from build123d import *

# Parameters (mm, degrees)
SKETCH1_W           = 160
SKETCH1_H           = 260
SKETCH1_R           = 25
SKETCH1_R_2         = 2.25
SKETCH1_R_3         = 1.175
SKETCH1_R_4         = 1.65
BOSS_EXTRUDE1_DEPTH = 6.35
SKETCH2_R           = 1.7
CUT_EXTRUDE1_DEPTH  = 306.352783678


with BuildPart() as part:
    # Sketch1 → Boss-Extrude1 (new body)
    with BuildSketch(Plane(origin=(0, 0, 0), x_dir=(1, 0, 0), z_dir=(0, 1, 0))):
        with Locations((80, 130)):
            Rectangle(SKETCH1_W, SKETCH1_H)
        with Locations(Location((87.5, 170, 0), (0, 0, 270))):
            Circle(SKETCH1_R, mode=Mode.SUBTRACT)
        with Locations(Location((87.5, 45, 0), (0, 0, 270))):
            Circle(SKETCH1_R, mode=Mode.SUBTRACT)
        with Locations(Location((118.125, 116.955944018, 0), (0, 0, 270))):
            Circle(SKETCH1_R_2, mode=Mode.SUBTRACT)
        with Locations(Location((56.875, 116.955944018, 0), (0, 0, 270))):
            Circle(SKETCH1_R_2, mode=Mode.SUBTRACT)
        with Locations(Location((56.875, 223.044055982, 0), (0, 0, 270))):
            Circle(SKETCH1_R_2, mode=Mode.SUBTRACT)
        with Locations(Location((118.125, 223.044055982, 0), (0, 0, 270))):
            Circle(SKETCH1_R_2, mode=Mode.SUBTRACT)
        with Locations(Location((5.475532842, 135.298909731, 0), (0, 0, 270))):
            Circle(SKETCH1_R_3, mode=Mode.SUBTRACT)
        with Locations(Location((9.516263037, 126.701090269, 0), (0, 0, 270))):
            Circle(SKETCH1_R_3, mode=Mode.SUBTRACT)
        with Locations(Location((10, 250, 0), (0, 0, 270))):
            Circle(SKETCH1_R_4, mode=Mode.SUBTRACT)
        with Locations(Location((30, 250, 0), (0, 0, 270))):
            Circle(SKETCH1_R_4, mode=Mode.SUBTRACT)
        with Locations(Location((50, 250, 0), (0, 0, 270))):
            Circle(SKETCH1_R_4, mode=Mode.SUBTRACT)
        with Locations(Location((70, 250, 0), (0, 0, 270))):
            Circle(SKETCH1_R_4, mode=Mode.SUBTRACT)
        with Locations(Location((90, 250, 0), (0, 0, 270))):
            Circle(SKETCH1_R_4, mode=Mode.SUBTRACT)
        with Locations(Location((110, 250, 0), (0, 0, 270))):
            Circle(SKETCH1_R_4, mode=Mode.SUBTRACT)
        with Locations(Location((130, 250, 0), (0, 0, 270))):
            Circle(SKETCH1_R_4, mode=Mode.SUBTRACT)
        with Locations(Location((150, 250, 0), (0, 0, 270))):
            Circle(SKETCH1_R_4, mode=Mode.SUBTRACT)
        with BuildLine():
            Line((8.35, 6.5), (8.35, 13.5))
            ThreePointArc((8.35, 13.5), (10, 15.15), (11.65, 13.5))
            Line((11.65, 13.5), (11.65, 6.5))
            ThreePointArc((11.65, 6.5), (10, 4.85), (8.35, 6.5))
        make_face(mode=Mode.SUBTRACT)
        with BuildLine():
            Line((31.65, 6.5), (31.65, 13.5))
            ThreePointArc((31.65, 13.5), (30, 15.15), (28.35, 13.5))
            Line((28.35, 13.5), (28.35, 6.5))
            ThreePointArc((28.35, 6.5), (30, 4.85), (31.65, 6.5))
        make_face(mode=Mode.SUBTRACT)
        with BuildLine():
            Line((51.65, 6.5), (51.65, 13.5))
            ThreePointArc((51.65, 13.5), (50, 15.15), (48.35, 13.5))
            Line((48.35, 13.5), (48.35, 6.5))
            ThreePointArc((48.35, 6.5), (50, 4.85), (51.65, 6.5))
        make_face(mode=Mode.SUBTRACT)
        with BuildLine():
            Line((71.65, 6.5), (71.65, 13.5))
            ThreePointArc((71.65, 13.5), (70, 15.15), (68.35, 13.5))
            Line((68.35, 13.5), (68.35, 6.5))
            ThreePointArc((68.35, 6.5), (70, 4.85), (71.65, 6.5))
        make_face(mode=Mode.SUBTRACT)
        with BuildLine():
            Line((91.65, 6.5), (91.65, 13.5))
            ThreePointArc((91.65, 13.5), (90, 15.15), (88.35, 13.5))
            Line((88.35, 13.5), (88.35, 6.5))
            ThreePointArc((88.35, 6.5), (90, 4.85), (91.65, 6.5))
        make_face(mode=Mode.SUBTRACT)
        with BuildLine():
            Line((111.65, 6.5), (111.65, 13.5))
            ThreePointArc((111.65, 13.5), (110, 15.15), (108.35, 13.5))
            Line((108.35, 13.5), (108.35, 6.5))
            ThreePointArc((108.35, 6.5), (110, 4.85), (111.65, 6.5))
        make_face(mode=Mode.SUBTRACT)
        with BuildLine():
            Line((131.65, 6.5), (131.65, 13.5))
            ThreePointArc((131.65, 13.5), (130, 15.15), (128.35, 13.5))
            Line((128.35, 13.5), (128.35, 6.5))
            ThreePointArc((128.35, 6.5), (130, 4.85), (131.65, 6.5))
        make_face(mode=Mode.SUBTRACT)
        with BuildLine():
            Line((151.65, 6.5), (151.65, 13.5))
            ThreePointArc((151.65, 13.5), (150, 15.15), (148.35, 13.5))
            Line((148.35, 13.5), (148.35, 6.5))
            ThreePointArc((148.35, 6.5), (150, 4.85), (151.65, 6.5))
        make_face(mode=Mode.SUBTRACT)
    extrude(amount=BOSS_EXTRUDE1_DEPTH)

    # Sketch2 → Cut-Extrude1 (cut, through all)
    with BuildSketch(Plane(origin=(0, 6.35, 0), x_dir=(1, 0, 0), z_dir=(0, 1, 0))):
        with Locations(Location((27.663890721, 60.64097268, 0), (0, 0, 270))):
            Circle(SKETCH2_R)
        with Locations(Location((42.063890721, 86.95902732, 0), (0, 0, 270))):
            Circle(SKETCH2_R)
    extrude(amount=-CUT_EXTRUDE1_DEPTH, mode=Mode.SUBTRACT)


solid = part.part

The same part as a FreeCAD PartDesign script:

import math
import FreeCAD as App
import Part
import Sketcher
from FreeCAD import Vector
Q = App.Units.Quantity

doc = App.newDocument("Part")
params = doc.addObject("Spreadsheet::Sheet", "Params")
for row, (alias, value) in enumerate([
    ("sketch1_diameter", "50 mm"),
    ("sketch1_diameter2", "4.5 mm"),
    ("sketch1_diameter3", "3.3 mm"),
    ("sketch1_diameter4", "2.35 mm"),
    ("sketch1_width", "160 mm"),
    ("pad1_length", "6.35 mm"),
    ("sketch2_diameter", "3.4 mm"),
], start=1):
    params.set(f"A{row}", alias)
    params.set(f"B{row}", "=" + value)
    params.setAlias(f"B{row}", alias)

body = doc.addObject("PartDesign::Body", "Body")

# Sketch on XZ plane
sketch1 = body.newObject("Sketcher::SketchObject", "Sketch")
sketch1.AttachmentSupport = (doc.getObject("XZ_Plane"), [""])
sketch1.MapMode = "FlatFace"
sketch1.addGeometry([
    Part.LineSegment(Vector(0, -260, 0), Vector(0, 0, 0)),  # 0
    Part.LineSegment(Vector(0, 0, 0), Vector(160, 0, 0)),  # 1
    Part.LineSegment(Vector(160, 0, 0), Vector(160, -260, 0)),  # 2
    Part.LineSegment(Vector(160, -260, 0), Vector(0, -260, 0)),  # 3
    Part.ArcOfCircle(Part.Circle(Vector(10, -6.5, 0), Vector(0, 0, 1), 1.6), math.radians(0), math.radians(180)),  # 4
    Part.LineSegment(Vector(8.3, -6.5, 0), Vector(8.3, -13.5, 0)),  # 5
    Part.ArcOfCircle(Part.Circle(Vector(10, -13.5, 0), Vector(0, 0, 1), 1.6), math.radians(180), math.radians(360)),  # 6
    Part.LineSegment(Vector(11.7, -13.5, 0), Vector(11.7, -6.5, 0)),  # 7
    Part.LineSegment(Vector(31.6, -13.5, 0), Vector(31.6, -6.5, 0)),  # 8
    Part.ArcOfCircle(Part.Circle(Vector(30, -6.5, 0), Vector(0, 0, 1), 1.6), math.radians(0), math.radians(180)),  # 9
    Part.LineSegment(Vector(28.4, -6.5, 0), Vector(28.4, -13.5, 0)),  # 10
    Part.ArcOfCircle(Part.Circle(Vector(30, -13.5, 0), Vector(0, 0, 1), 1.6), math.radians(180), math.radians(360)),  # 11
    Part.LineSegment(Vector(51.6, -13.5, 0), Vector(51.6, -6.5, 0)),  # 12
    Part.ArcOfCircle(Part.Circle(Vector(50, -6.5, 0), Vector(0, 0, 1), 1.6), math.radians(0), math.radians(180)),  # 13
    Part.LineSegment(Vector(48.4, -6.5, 0), Vector(48.4, -13.5, 0)),  # 14
    Part.ArcOfCircle(Part.Circle(Vector(50, -13.5, 0), Vector(0, 0, 1), 1.6), math.radians(180), math.radians(360)),  # 15
    Part.LineSegment(Vector(71.7, -13.5, 0), Vector(71.7, -6.5, 0)),  # 16
    Part.ArcOfCircle(Part.Circle(Vector(70, -6.5, 0), Vector(0, 0, 1), 1.6), math.radians(0), math.radians(180)),  # 17
    Part.LineSegment(Vector(68.3, -6.5, 0), Vector(68.3, -13.5, 0)),  # 18
    Part.ArcOfCircle(Part.Circle(Vector(70, -13.5, 0), Vector(0, 0, 1), 1.6), math.radians(180), math.radians(360)),  # 19
    Part.Circle(Vector(9.5, -126.7, 0), Vector(0, 0, 1), 1.2),  # 20
    Part.Circle(Vector(56.9, -117, 0), Vector(0, 0, 1), 2.2),  # 21
    Part.LineSegment(Vector(91.7, -13.5, 0), Vector(91.7, -6.5, 0)),  # 22
    Part.ArcOfCircle(Part.Circle(Vector(90, -6.5, 0), Vector(0, 0, 1), 1.6), math.radians(0), math.radians(180)),  # 23
    Part.LineSegment(Vector(88.3, -6.5, 0), Vector(88.3, -13.5, 0)),  # 24
    Part.ArcOfCircle(Part.Circle(Vector(90, -13.5, 0), Vector(0, 0, 1), 1.6), math.radians(180), math.radians(360)),  # 25
    Part.LineSegment(Vector(111.7, -13.5, 0), Vector(111.7, -6.5, 0)),  # 26
    Part.ArcOfCircle(Part.Circle(Vector(110, -6.5, 0), Vector(0, 0, 1), 1.6), math.radians(0), math.radians(180)),  # 27
    Part.LineSegment(Vector(108.3, -6.5, 0), Vector(108.3, -13.5, 0)),  # 28
    Part.ArcOfCircle(Part.Circle(Vector(110, -13.5, 0), Vector(0, 0, 1), 1.6), math.radians(180), math.radians(360)),  # 29
    Part.Circle(Vector(87.5, -45, 0), Vector(0, 0, 1), 25),  # 30
    Part.LineSegment(Vector(131.7, -13.5, 0), Vector(131.7, -6.5, 0)),  # 31
    Part.ArcOfCircle(Part.Circle(Vector(130, -6.5, 0), Vector(0, 0, 1), 1.6), math.radians(0), math.radians(180)),  # 32
    Part.LineSegment(Vector(128.3, -6.5, 0), Vector(128.3, -13.5, 0)),  # 33
    Part.ArcOfCircle(Part.Circle(Vector(130, -13.5, 0), Vector(0, 0, 1), 1.6), math.radians(180), math.radians(360)),  # 34
    Part.LineSegment(Vector(151.7, -13.5, 0), Vector(151.7, -6.5, 0)),  # 35
    Part.ArcOfCircle(Part.Circle(Vector(150, -6.5, 0), Vector(0, 0, 1), 1.6), math.radians(0), math.radians(180)),  # 36
    Part.LineSegment(Vector(148.3, -6.5, 0), Vector(148.3, -13.5, 0)),  # 37
    Part.ArcOfCircle(Part.Circle(Vector(150, -13.5, 0), Vector(0, 0, 1), 1.6), math.radians(180), math.radians(360)),  # 38
    Part.Circle(Vector(118.1, -117, 0), Vector(0, 0, 1), 2.2),  # 39
    Part.Circle(Vector(5.5, -135.3, 0), Vector(0, 0, 1), 1.2),  # 40
    Part.Circle(Vector(10, -250, 0), Vector(0, 0, 1), 1.6),  # 41
    Part.Circle(Vector(30, -250, 0), Vector(0, 0, 1), 1.6),  # 42
    Part.Circle(Vector(56.9, -223, 0), Vector(0, 0, 1), 2.2),  # 43
    Part.Circle(Vector(50, -250, 0), Vector(0, 0, 1), 1.6),  # 44
    Part.Circle(Vector(70, -250, 0), Vector(0, 0, 1), 1.6),  # 45
    Part.Circle(Vector(87.5, -170, 0), Vector(0, 0, 1), 25),  # 46
    Part.Circle(Vector(90, -250, 0), Vector(0, 0, 1), 1.6),  # 47
    Part.Circle(Vector(110, -250, 0), Vector(0, 0, 1), 1.6),  # 48
    Part.Circle(Vector(118.1, -223, 0), Vector(0, 0, 1), 2.2),  # 49
    Part.Circle(Vector(130, -250, 0), Vector(0, 0, 1), 1.6),  # 50
    Part.Circle(Vector(150, -250, 0), Vector(0, 0, 1), 1.6),  # 51
], False)
sketch1.addConstraint([
    Sketcher.Constraint("Coincident", 0, 2, 1, 1),
    Sketcher.Constraint("Coincident", 1, 2, 2, 1),
    Sketcher.Constraint("Coincident", 2, 2, 3, 1),
    Sketcher.Constraint("Coincident", 3, 2, 0, 1),
    Sketcher.Constraint("Tangent", 4, 2, 5, 1),
    Sketcher.Constraint("Tangent", 5, 2, 6, 1),
    Sketcher.Constraint("Tangent", 6, 2, 7, 1),
    Sketcher.Constraint("Tangent", 7, 2, 4, 1),
    Sketcher.Constraint("Tangent", 8, 2, 9, 1),
    Sketcher.Constraint("Tangent", 9, 2, 10, 1),
    Sketcher.Constraint("Tangent", 10, 2, 11, 1),
    Sketcher.Constraint("Tangent", 11, 2, 8, 1),
    Sketcher.Constraint("Tangent", 12, 2, 13, 1),
    Sketcher.Constraint("Tangent", 13, 2, 14, 1),
    Sketcher.Constraint("Tangent", 14, 2, 15, 1),
    Sketcher.Constraint("Tangent", 15, 2, 12, 1),
    Sketcher.Constraint("Tangent", 16, 2, 17, 1),
    Sketcher.Constraint("Tangent", 17, 2, 18, 1),
    Sketcher.Constraint("Tangent", 18, 2, 19, 1),
    Sketcher.Constraint("Tangent", 19, 2, 16, 1),
    Sketcher.Constraint("Tangent", 22, 2, 23, 1),
    Sketcher.Constraint("Tangent", 23, 2, 24, 1),
    Sketcher.Constraint("Tangent", 24, 2, 25, 1),
    Sketcher.Constraint("Tangent", 25, 2, 22, 1),
    Sketcher.Constraint("Tangent", 26, 2, 27, 1),
    Sketcher.Constraint("Tangent", 27, 2, 28, 1),
    Sketcher.Constraint("Tangent", 28, 2, 29, 1),
    Sketcher.Constraint("Tangent", 29, 2, 26, 1),
    Sketcher.Constraint("Tangent", 31, 2, 32, 1),
    Sketcher.Constraint("Tangent", 32, 2, 33, 1),
    Sketcher.Constraint("Tangent", 33, 2, 34, 1),
    Sketcher.Constraint("Tangent", 34, 2, 31, 1),
    Sketcher.Constraint("Tangent", 35, 2, 36, 1),
    Sketcher.Constraint("Tangent", 36, 2, 37, 1),
    Sketcher.Constraint("Tangent", 37, 2, 38, 1),
    Sketcher.Constraint("Tangent", 38, 2, 35, 1),
    Sketcher.Constraint("Vertical", 0),
    Sketcher.Constraint("Horizontal", 1),
    Sketcher.Constraint("Vertical", 2),
    Sketcher.Constraint("Horizontal", 3),
    Sketcher.Constraint("Vertical", 5),
    Sketcher.Constraint("Vertical", 7),
    Sketcher.Constraint("Vertical", 8),
    Sketcher.Constraint("Vertical", 10),
    Sketcher.Constraint("Vertical", 12),
    Sketcher.Constraint("Vertical", 14),
    Sketcher.Constraint("Vertical", 16),
    Sketcher.Constraint("Vertical", 18),
    Sketcher.Constraint("Vertical", 22),
    Sketcher.Constraint("Vertical", 24),
    Sketcher.Constraint("Vertical", 26),
    Sketcher.Constraint("Vertical", 28),
    Sketcher.Constraint("Vertical", 31),
    Sketcher.Constraint("Vertical", 33),
    Sketcher.Constraint("Vertical", 35),
    Sketcher.Constraint("Vertical", 37),
    Sketcher.Constraint("Coincident", 0, 2, -1, 1),
    Sketcher.Constraint("Equal", 6, 9),
    Sketcher.Constraint("Equal", 11, 13),
    Sketcher.Constraint("Equal", 15, 17),
    Sketcher.Constraint("Equal", 19, 23),
    Sketcher.Constraint("Equal", 25, 27),
    Sketcher.Constraint("Equal", 29, 32),
    Sketcher.Constraint("Equal", 34, 36),
    Sketcher.Constraint("Equal", 21, 39),
    Sketcher.Constraint("Equal", 20, 40),
    Sketcher.Constraint("Equal", 38, 41),
    Sketcher.Constraint("Equal", 41, 42),
    Sketcher.Constraint("Equal", 39, 43),
    Sketcher.Constraint("Equal", 42, 44),
    Sketcher.Constraint("Equal", 44, 45),
    Sketcher.Constraint("Equal", 30, 46),
    Sketcher.Constraint("Equal", 45, 47),
    Sketcher.Constraint("Equal", 47, 48),
    Sketcher.Constraint("Equal", 43, 49),
    Sketcher.Constraint("Equal", 48, 50),
    Sketcher.Constraint("Equal", 50, 51),
    Sketcher.Constraint("Horizontal", 4, 3, 9, 3),
    Sketcher.Constraint("Horizontal", 6, 3, 11, 3),
    Sketcher.Constraint("Horizontal", 9, 3, 13, 3),
    Sketcher.Constraint("Horizontal", 11, 3, 15, 3),
    Sketcher.Constraint("Horizontal", 13, 3, 17, 3),
    Sketcher.Constraint("Horizontal", 15, 3, 19, 3),
    Sketcher.Constraint("Horizontal", 17, 3, 23, 3),
    Sketcher.Constraint("Horizontal", 19, 3, 25, 3),
    Sketcher.Constraint("Horizontal", 23, 3, 27, 3),
    Sketcher.Constraint("Horizontal", 25, 3, 29, 3),
    Sketcher.Constraint("Horizontal", 27, 3, 32, 3),
    Sketcher.Constraint("Horizontal", 29, 3, 34, 3),
    Sketcher.Constraint("Horizontal", 32, 3, 36, 3),
    Sketcher.Constraint("Horizontal", 34, 3, 38, 3),
    Sketcher.Constraint("Horizontal", 21, 3, 39, 3),
    Sketcher.Constraint("Horizontal", 41, 3, 42, 3),
    Sketcher.Constraint("Horizontal", 42, 3, 44, 3),
    Sketcher.Constraint("Horizontal", 44, 3, 45, 3),
    Sketcher.Constraint("Horizontal", 45, 3, 47, 3),
    Sketcher.Constraint("Horizontal", 47, 3, 48, 3),
    Sketcher.Constraint("Horizontal", 43, 3, 49, 3),
    Sketcher.Constraint("Horizontal", 48, 3, 50, 3),
    Sketcher.Constraint("Horizontal", 50, 3, 51, 3),
    Sketcher.Constraint("Vertical", 6, 3, 41, 3),
    Sketcher.Constraint("Vertical", 11, 3, 42, 3),
    Sketcher.Constraint("Vertical", 21, 3, 43, 3),
    Sketcher.Constraint("Vertical", 15, 3, 44, 3),
    Sketcher.Constraint("Vertical", 19, 3, 45, 3),
    Sketcher.Constraint("Vertical", 30, 3, 46, 3),
    Sketcher.Constraint("Vertical", 25, 3, 47, 3),
    Sketcher.Constraint("Vertical", 29, 3, 48, 3),
    Sketcher.Constraint("Vertical", 39, 3, 49, 3),
    Sketcher.Constraint("Vertical", 34, 3, 50, 3),
    Sketcher.Constraint("Vertical", 38, 3, 51, 3),
    Sketcher.Constraint("Diameter", 30, Q("50 mm")),
    Sketcher.Constraint("Diameter", 21, Q("4.5 mm")),
    Sketcher.Constraint("Diameter", 41, Q("3.3 mm")),
    Sketcher.Constraint("Diameter", 20, Q("2.35 mm")),
    Sketcher.Constraint("DistanceX", 1, 1, 1, 2, Q("160 mm")),
    Sketcher.Constraint("DistanceY", 0, 1, 0, 2, Q("260 mm")),
    Sketcher.Constraint("DistanceY", 5, 2, 5, 1, Q("7 mm")),
    Sketcher.Constraint("DistanceX", -1, 1, 4, 3, Q("10 mm")),
    Sketcher.Constraint("DistanceX", -1, 1, 9, 3, Q("30 mm")),
    Sketcher.Constraint("DistanceX", -1, 1, 13, 3, Q("50 mm")),
    Sketcher.Constraint("DistanceX", -1, 1, 17, 3, Q("70 mm")),
    Sketcher.Constraint("DistanceX", -1, 1, 23, 3, Q("90 mm")),
    Sketcher.Constraint("DistanceX", -1, 1, 27, 3, Q("110 mm")),
    Sketcher.Constraint("DistanceY", 30, 3, -1, 1, Q("45 mm")),
    Sketcher.Constraint("DistanceX", -1, 1, 32, 3, Q("130 mm")),
    Sketcher.Constraint("DistanceX", -1, 1, 36, 3, Q("150 mm")),
    Sketcher.Constraint("DistanceY", 41, 3, -1, 1, Q("250 mm")),
    Sketcher.Constraint("DistanceY", 46, 3, -1, 1, Q("170 mm")),
    Sketcher.Constraint("DistanceY", 4, 3, -1, 1, Q("6.5 mm")),
    Sketcher.Constraint("DistanceX", -1, 1, 30, 3, Q("87.5 mm")),
    Sketcher.Constraint("DistanceX", -1, 1, 21, 3, Q("56.875 mm")),
    Sketcher.Constraint("DistanceX", -1, 1, 39, 3, Q("118.125 mm")),
    Sketcher.Constraint("DistanceY", 20, 3, -1, 1, Q("126.70109 mm")),
    Sketcher.Constraint("DistanceY", 40, 3, -1, 1, Q("135.29891 mm")),
    Sketcher.Constraint("DistanceX", -1, 1, 20, 3, Q("9.516263 mm")),
    Sketcher.Constraint("DistanceY", 21, 3, -1, 1, Q("116.955944 mm")),
    Sketcher.Constraint("DistanceX", -1, 1, 40, 3, Q("5.475533 mm")),
    Sketcher.Constraint("DistanceY", 43, 3, -1, 1, Q("223.044056 mm")),
])
sketch1.setExpression("Constraints[111]", "Params.sketch1_diameter")
sketch1.setExpression("Constraints[112]", "Params.sketch1_diameter2")
sketch1.setExpression("Constraints[113]", "Params.sketch1_diameter3")
sketch1.setExpression("Constraints[114]", "Params.sketch1_diameter4")
sketch1.setExpression("Constraints[115]", "Params.sketch1_width")
pad1 = body.newObject("PartDesign::Pad", "Pad")
pad1.Profile = sketch1
pad1.setExpression("Length", "Params.pad1_length")
pad1.Reversed = True

# Sketch on XZ plane
sketch2 = body.newObject("Sketcher::SketchObject", "Sketch001")
sketch2.AttachmentSupport = (doc.getObject("XZ_Plane"), [""])
sketch2.MapMode = "FlatFace"
sketch2.AttachmentOffset = App.Placement(Vector(0, 0, -6.35), App.Rotation())
sketch2.addGeometry([
    Part.Circle(Vector(27.7, -60.6, 0), Vector(0, 0, 1), 1.7),
    Part.Circle(Vector(42.1, -87, 0), Vector(0, 0, 1), 1.7),
], False)
sketch2.addConstraint([
    Sketcher.Constraint("Equal", 0, 1),
    Sketcher.Constraint("Diameter", 0, Q("3.4 mm")),
    Sketcher.Constraint("DistanceX", 0, 3, 1, 3, Q("14.4 mm")),
    Sketcher.Constraint("DistanceX", -1, 1, 0, 3, Q("27.663891 mm")),
    Sketcher.Constraint("DistanceY", 0, 3, -1, 1, Q("60.640973 mm")),
    Sketcher.Constraint("DistanceY", 1, 3, -1, 1, Q("86.959027 mm")),
])
sketch2.setExpression("Constraints[1]", "Params.sketch2_diameter")
pocket1 = body.newObject("PartDesign::Pocket", "Pocket")
pocket1.Profile = sketch2
pocket1.Type = "ThroughAll"
pocket1.Reversed = True

doc.recompute()
